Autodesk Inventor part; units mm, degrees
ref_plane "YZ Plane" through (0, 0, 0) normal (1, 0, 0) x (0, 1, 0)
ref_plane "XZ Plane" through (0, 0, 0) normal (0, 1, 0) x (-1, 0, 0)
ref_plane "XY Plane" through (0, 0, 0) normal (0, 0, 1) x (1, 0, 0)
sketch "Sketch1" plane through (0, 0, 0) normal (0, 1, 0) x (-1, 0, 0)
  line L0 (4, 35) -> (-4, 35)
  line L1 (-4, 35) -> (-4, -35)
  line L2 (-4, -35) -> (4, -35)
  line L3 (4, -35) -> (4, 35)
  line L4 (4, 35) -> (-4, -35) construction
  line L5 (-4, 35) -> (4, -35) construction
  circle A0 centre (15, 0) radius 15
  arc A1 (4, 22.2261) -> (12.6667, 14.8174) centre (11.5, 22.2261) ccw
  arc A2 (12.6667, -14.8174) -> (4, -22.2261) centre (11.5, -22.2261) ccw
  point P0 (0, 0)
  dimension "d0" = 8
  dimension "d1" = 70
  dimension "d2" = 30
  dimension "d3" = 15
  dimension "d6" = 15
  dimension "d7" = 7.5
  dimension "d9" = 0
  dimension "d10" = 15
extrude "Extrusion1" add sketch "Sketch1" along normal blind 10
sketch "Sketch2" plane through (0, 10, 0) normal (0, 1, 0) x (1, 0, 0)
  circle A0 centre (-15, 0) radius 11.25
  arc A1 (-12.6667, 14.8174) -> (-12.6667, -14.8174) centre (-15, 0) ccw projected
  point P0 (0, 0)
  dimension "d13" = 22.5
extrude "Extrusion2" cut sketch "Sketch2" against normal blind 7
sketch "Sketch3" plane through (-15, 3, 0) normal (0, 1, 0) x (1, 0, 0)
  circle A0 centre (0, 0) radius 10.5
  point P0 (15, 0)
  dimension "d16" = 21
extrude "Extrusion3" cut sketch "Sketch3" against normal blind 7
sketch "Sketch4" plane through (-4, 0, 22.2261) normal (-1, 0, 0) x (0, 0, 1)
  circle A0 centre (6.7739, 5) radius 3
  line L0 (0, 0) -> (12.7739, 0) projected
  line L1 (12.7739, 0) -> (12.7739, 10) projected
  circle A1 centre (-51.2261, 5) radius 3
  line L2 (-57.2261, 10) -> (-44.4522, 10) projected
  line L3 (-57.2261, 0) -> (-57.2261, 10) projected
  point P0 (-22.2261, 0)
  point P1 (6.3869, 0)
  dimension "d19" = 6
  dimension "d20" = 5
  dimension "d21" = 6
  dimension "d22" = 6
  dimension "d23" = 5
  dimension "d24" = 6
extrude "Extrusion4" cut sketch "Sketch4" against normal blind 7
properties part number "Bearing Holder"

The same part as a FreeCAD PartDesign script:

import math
import FreeCAD as App
import Part
import Sketcher

V = App.Vector

doc = App.newDocument("Part")
body = doc.addObject("PartDesign::Body", "Body")

# Sketch on XZ plane
sketch1 = doc.addObject("Sketcher::SketchObject", "Sketch")
body.addObject(sketch1)
sketch1.AttachmentSupport = (doc.XZ_Plane, [""])
sketch1.MapMode = "FlatFace"
sketch1.addGeometry([
    Part.LineSegment(V(-4, 22, 0), V(-4, 35, 0)),  # 0
    Part.LineSegment(V(-4, 35, 0), V(4, 35, 0)),  # 1
    Part.LineSegment(V(4, 35, 0), V(4, -35, 0)),  # 2
    Part.LineSegment(V(4, -35, 0), V(-4, -35, 0)),  # 3
    Part.LineSegment(V(-4, -35, 0), V(-4, -22, 0)),  # 4
    Part.ArcOfCircle(Part.Circle(V(-12, -22, 0), V(0, 0, 1), 8), math.radians(0), math.radians(99)),  # 5
    Part.ArcOfCircle(Part.Circle(V(-15, 0, 0), V(0, 0, 1), 15), math.radians(81), math.radians(279)),  # 6
    Part.ArcOfCircle(Part.Circle(V(-12, 22, 0), V(0, 0, 1), 8), math.radians(-99), math.radians(0)),  # 7
], False)
sketch1.addConstraint([
    Sketcher.Constraint("Coincident", 0, 2, 1, 1),
    Sketcher.Constraint("Coincident", 1, 2, 2, 1),
    Sketcher.Constraint("Coincident", 2, 2, 3, 1),
    Sketcher.Constraint("Coincident", 3, 2, 4, 1),
    Sketcher.Constraint("Tangent", 4, 2, 5, 1),
    Sketcher.Constraint("Tangent", 5, 2, 6, 2),
    Sketcher.Constraint("Tangent", 6, 1, 7, 1),
    Sketcher.Constraint("Tangent", 7, 2, 0, 1),
    Sketcher.Constraint("Vertical", 0),
    Sketcher.Constraint("Horizontal", 1),
    Sketcher.Constraint("Vertical", 2),
    Sketcher.Constraint("Horizontal", 3),
    Sketcher.Constraint("Vertical", 4),
    Sketcher.Constraint("Equal", 5, 7),
    Sketcher.Constraint("Symmetric", 0, 2, 2, 2, -1, 1),
    Sketcher.Constraint("Symmetric", 5, 3, 7, 3, -1),
    Sketcher.Constraint("Radius", 6, 15.0),
    Sketcher.Constraint("Radius", 5, 7.5),
    Sketcher.Constraint("DistanceX", 1, 1, 1, 2, 8.0),
    Sketcher.Constraint("DistanceY", 2, 2, 2, 1, 70.0),
    Sketcher.Constraint("DistanceX", 6, 3, -1, 1, 15.0),
])
pad1 = doc.addObject("PartDesign::Pad", "Pad")
body.addObject(pad1)
pad1.Profile = sketch1
pad1.Length = 10
pad1.Reversed = True

# Sketch on XZ plane
sketch2 = doc.addObject("Sketcher::SketchObject", "Sketch001")
body.addObject(sketch2)
sketch2.AttachmentSupport = (doc.XZ_Plane, [""])
sketch2.MapMode = "FlatFace"
sketch2.AttachmentOffset = App.Placement(V(0, 0, -10), App.Rotation())
sketch2.addGeometry(Part.Circle(V(-15, 0, 0), V(0, 0, 1), 11), False)
sketch2.addConstraint([
    Sketcher.Constraint("PointOnObject", 0, 3, -1),
    Sketcher.Constraint("Diameter", 0, 22.5),
    Sketcher.Constraint("DistanceX", 0, 3, -1, 1, 15.0),
])
pocket1 = doc.addObject("PartDesign::Pocket", "Pocket")
body.addObject(pocket1)
pocket1.Profile = sketch2
pocket1.Length = 7
pocket1.Reversed = True

# Sketch on XZ plane
sketch3 = doc.addObject("Sketcher::SketchObject", "Sketch002")
body.addObject(sketch3)
sketch3.AttachmentSupport = (doc.XZ_Plane, [""])
sketch3.MapMode = "FlatFace"
sketch3.AttachmentOffset = App.Placement(V(0, 0, -3), App.Rotation())
sketch3.addGeometry(Part.Circle(V(-15, 0, 0), V(0, 0, 1), 10), False)
sketch3.addConstraint([
    Sketcher.Constraint("PointOnObject", 0, 3, -1),
    Sketcher.Constraint("Diameter", 0, 21.0),
    Sketcher.Constraint("DistanceX", 0, 3, -1, 1, 15.0),
])
pocket2 = doc.addObject("PartDesign::Pocket", "Pocket001")
body.addObject(pocket2)
pocket2.Profile = sketch3
pocket2.Length = 7
pocket2.Reversed = True

# Sketch on YZ plane
sketch4 = doc.addObject("Sketcher::SketchObject", "Sketch003")
body.addObject(sketch4)
sketch4.AttachmentSupport = (doc.YZ_Plane, [""])
sketch4.MapMode = "FlatFace"
sketch4.AttachmentOffset = App.Placement(V(0, 0, -4), App.Rotation())
sketch4.addGeometry([
    Part.Circle(V(5, 29, 0), V(0, 0, 1), 3),
    Part.Circle(V(5, -29, 0), V(0, 0, 1), 3),
], False)
sketch4.addConstraint([
    Sketcher.Constraint("Equal", 0, 1),
    Sketcher.Constraint("Symmetric", 0, 3, 1, 3, -1),
    Sketcher.Constraint("Diameter", 0, 6.0),
    Sketcher.Constraint("DistanceX", -1, 1, 0, 3, 5.0),
    Sketcher.Constraint("DistanceY", -1, 1, 0, 3, 29.0),
])
pocket3 = doc.addObject("PartDesign::Pocket", "Pocket002")
body.addObject(pocket3)
pocket3.Profile = sketch4
pocket3.Length = 7
pocket3.Reversed = True

doc.recompute()
